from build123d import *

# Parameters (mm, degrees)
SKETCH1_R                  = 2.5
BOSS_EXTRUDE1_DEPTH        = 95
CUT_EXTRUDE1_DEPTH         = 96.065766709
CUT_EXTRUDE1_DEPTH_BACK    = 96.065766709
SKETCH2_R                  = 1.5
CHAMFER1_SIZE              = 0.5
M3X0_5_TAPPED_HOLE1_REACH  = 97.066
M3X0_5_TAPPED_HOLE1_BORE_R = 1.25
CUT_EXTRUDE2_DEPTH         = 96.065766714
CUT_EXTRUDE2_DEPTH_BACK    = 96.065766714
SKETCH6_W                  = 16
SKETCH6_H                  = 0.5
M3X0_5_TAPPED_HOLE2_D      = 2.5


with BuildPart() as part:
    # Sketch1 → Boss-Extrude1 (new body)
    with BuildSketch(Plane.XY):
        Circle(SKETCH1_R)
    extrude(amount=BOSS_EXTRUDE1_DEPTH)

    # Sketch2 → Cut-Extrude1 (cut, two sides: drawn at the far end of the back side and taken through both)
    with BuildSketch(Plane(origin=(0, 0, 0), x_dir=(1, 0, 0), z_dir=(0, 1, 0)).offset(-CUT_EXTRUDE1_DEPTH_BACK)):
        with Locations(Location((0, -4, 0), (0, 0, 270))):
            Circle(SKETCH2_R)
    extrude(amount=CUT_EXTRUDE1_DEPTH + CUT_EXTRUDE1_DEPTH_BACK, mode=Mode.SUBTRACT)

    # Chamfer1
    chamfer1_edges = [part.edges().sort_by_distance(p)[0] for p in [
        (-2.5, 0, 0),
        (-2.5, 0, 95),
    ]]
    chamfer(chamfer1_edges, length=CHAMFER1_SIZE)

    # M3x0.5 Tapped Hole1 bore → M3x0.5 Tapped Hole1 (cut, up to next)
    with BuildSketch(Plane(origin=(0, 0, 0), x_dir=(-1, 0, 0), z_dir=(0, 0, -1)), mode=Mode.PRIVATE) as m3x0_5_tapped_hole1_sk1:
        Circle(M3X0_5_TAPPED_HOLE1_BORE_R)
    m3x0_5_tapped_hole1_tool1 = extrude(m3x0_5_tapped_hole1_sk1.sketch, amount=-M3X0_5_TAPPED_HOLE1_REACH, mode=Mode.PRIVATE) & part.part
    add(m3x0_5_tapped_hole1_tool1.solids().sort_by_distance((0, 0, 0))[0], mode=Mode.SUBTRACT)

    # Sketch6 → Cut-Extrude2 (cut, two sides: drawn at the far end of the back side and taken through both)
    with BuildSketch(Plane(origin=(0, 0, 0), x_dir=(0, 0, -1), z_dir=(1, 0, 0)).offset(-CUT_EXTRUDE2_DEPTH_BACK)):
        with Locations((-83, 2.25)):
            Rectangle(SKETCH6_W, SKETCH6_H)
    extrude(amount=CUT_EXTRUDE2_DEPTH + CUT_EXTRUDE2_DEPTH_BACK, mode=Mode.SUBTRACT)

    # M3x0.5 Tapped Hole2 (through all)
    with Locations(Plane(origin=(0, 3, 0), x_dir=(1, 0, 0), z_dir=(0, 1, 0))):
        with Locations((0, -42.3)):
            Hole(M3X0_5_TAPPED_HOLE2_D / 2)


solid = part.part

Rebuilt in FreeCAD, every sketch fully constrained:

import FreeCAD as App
import Part
import Sketcher


def edges_at(feature, points):
    """Names of the edges that pass closest to the given points."""
    edges = feature.Shape.Edges
    near = lambda p: min(range(len(edges)), key=lambda i: edges[i].distToShape(Part.Vertex(*p))[0])
    return sorted({f"Edge{near(p) + 1}" for p in points})

doc = App.newDocument("Part")
body = doc.addObject("PartDesign::Body", "Body")

# Sketch on XY plane
sketch1 = body.newObject("Sketcher::SketchObject", "Sketch")
sketch1.AttachmentSupport = (doc.getObject("XY_Plane"), [""])
sketch1.MapMode = "FlatFace"
sketch1.addGeometry(Part.Circle(App.Vector(0, 0, 0), App.Vector(0, 0, 1), 2.5), False)
sketch1.addConstraint([
    Sketcher.Constraint("Coincident", 0, 3, -1, 1),
    Sketcher.Constraint("Diameter", 0, 5.0),
])
pad1 = body.newObject("PartDesign::Pad", "Pad")
pad1.Profile = sketch1
pad1.Length = 95

# Sketch on XZ plane
sketch2 = body.newObject("Sketcher::SketchObject", "Sketch001")
sketch2.AttachmentSupport = (doc.getObject("XZ_Plane"), [""])
sketch2.MapMode = "FlatFace"
sketch2.addGeometry(Part.Circle(App.Vector(0, 4, 0), App.Vector(0, 0, 1), 1.5), False)
sketch2.addConstraint([
    Sketcher.Constraint("PointOnObject", 0, 3, -2),
    Sketcher.Constraint("Diameter", 0, 3.0),
    Sketcher.Constraint("DistanceY", -1, 1, 0, 3, 4.0),
])
pocket1 = body.newObject("PartDesign::Pocket", "Pocket")
pocket1.Profile = sketch2
pocket1.Type = "ThroughAll"
pocket1.Midplane = True
doc.recompute()

chamfer = body.newObject("PartDesign::Chamfer", "Chamfer")
chamfer.Base = (pocket1, edges_at(pocket1, [(-2.5, 0, 0), (-2.5, 0, 95)]))
chamfer.Size = 0.5

# Sketch on XY plane
sketch3 = body.newObject("Sketcher::SketchObject", "Sketch002")
sketch3.AttachmentSupport = (doc.getObject("XY_Plane"), [""])
sketch3.MapMode = "FlatFace"
sketch3.addGeometry(Part.Circle(App.Vector(0, 0, 0), App.Vector(0, 0, 1), 1.2), False)
sketch3.addConstraint([
    Sketcher.Constraint("Coincident", 0, 3, -1, 1),
    Sketcher.Constraint("Diameter", 0, 2.5),
])
pocket2 = body.newObject("PartDesign::Pocket", "Pocket001")
pocket2.Profile = sketch3
pocket2.Type = "UpToFirst"
pocket2.Reversed = True

# Sketch on YZ plane
sketch4 = body.newObject("Sketcher::SketchObject", "Sketch003")
sketch4.AttachmentSupport = (doc.getObject("YZ_Plane"), [""])
sketch4.MapMode = "FlatFace"
sketch4.addGeometry([
    Part.LineSegment(App.Vector(2.5, 91, 0), App.Vector(2, 91, 0)),
    Part.LineSegment(App.Vector(2, 91, 0), App.Vector(2, 75, 0)),
    Part.LineSegment(App.Vector(2, 75, 0), App.Vector(2.5, 75, 0)),
    Part.LineSegment(App.Vector(2.5, 75, 0), App.Vector(2.5, 91, 0)),
], False)
sketch4.addConstraint([
    Sketcher.Constraint("Coincident", 0, 2, 1, 1),
    Sketcher.Constraint("Coincident", 1, 2, 2, 1),
    Sketcher.Constraint("Coincident", 2, 2, 3, 1),
    Sketcher.Constraint("Coincident", 3, 2, 0, 1),
    Sketcher.Constraint("Horizontal", 0),
    Sketcher.Constraint("Vertical", 1),
    Sketcher.Constraint("Horizontal", 2),
    Sketcher.Constraint("Vertical", 3),
    Sketcher.Constraint("DistanceY", 1, 2, 1, 1, 16.0),
    Sketcher.Constraint("DistanceX", 0, 2, 0, 1, 0.5),
    Sketcher.Constraint("DistanceX", -1, 1, 0, 2, 2.0),
    Sketcher.Constraint("DistanceY", -1, 1, 0, 2, 91.0),
])
pocket3 = body.newObject("PartDesign::Pocket", "Pocket002")
pocket3.Profile = sketch4
pocket3.Type = "ThroughAll"
pocket3.Midplane = True

# Sketch on XZ plane
sketch5 = body.newObject("Sketcher::SketchObject", "Sketch004")
sketch5.AttachmentSupport = (doc.getObject("XZ_Plane"), [""])
sketch5.MapMode = "FlatFace"
sketch5.AttachmentOffset = App.Placement(App.Vector(0, 0, -3), App.Rotation())
sketch5.addGeometry(Part.Circle(App.Vector(0, 42.3, 0), App.Vector(0, 0, 1), 1.2), False)
sketch5.addConstraint([
    Sketcher.Constraint("PointOnObject", 0, 3, -2),
    Sketcher.Constraint("Diameter", 0, 2.5),
    Sketcher.Constraint("DistanceY", -1, 1, 0, 3, 42.3),
])
doc.recompute()
hole = body.newObject("PartDesign::Hole", "Hole")
hole.Profile = sketch5
hole.ThreadType = "None"
hole.Diameter = 2.5
hole.DepthType = "ThroughAll"
hole.Reversed = True

doc.recompute()
